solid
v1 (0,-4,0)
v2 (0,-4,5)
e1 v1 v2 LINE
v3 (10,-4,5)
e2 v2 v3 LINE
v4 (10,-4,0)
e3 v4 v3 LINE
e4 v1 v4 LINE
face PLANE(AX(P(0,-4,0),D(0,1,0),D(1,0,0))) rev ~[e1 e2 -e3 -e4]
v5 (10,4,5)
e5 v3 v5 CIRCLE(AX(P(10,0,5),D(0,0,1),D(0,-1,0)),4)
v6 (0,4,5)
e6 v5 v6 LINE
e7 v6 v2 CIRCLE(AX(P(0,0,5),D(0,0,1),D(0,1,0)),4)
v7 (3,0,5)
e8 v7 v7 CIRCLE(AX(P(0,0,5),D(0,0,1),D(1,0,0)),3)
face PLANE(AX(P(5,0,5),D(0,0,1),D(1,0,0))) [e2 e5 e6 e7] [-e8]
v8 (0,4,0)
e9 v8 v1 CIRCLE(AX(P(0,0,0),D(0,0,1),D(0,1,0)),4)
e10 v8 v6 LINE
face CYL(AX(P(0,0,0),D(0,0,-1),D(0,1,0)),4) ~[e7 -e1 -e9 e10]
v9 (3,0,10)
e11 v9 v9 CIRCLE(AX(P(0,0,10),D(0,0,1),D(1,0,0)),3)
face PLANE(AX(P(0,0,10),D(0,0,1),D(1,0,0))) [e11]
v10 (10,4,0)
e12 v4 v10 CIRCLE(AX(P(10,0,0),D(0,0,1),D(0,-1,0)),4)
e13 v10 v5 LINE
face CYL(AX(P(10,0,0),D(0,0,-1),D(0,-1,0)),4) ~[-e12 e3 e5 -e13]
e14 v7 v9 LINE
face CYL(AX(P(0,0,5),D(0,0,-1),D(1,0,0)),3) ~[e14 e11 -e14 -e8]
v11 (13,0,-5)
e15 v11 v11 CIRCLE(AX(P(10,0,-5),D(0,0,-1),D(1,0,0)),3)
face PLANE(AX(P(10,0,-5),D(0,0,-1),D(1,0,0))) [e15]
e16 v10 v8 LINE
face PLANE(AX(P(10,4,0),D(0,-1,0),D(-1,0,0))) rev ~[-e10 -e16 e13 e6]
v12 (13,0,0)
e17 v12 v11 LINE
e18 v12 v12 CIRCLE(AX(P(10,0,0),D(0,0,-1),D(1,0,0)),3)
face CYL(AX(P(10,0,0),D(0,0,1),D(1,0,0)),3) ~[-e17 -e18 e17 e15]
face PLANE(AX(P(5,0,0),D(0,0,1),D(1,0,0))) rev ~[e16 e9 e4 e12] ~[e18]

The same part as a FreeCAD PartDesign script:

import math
import FreeCAD as App
import Part
import Sketcher
from FreeCAD import Vector

doc = App.newDocument("Part")
params = doc.addObject("Spreadsheet::Sheet", "Params")
for row, (alias, value) in enumerate([
    ("sketch1_radius", "4 mm"),
    ("sketch1_width", "10 mm"),
    ("pad1_length", "5 mm"),
    ("sketch2_diameter", "6 mm"),
    ("pad2_length", "5 mm"),
    ("sketch3_diameter", "6 mm"),
    ("pad3_length", "5 mm"),
], start=1):
    params.set(f"A{row}", alias)
    params.set(f"B{row}", "=" + value)
    params.setAlias(f"B{row}", alias)

body = doc.addObject("PartDesign::Body", "Body")

# Sketch on XY plane
sketch1 = body.newObject("Sketcher::SketchObject", "Sketch")
sketch1.AttachmentSupport = (doc.getObject("XY_Plane"), [""])
sketch1.MapMode = "FlatFace"
sketch1.addGeometry([
    Part.ArcOfCircle(Part.Circle(Vector(0, 0, 0), Vector(0, 0, 1), 4), math.radians(90), math.radians(270)),
    Part.LineSegment(Vector(0, -4, 0), Vector(10, -4, 0)),
    Part.ArcOfCircle(Part.Circle(Vector(10, 0, 0), Vector(0, 0, 1), 4), math.radians(-90), math.radians(90)),
    Part.LineSegment(Vector(10, 4, 0), Vector(0, 4, 0)),
], False)
sketch1.addConstraint([
    Sketcher.Constraint("Tangent", 0, 2, 1, 1),
    Sketcher.Constraint("Tangent", 1, 2, 2, 1),
    Sketcher.Constraint("Tangent", 2, 2, 3, 1),
    Sketcher.Constraint("Tangent", 3, 2, 0, 1),
    Sketcher.Constraint("Horizontal", 1),
    Sketcher.Constraint("Horizontal", 3),
    Sketcher.Constraint("Coincident", 0, 3, -1, 1),
    Sketcher.Constraint("Radius", 0, 4.0),
    Sketcher.Constraint("DistanceX", 1, 1, 1, 2, 10.0),
])
sketch1.setExpression("Constraints[7]", "Params.sketch1_radius")
sketch1.setExpression("Constraints[8]", "Params.sketch1_width")
pad1 = body.newObject("PartDesign::Pad", "Pad")
pad1.Profile = sketch1
pad1.setExpression("Length", "Params.pad1_length")

# Sketch on XY plane
sketch2 = body.newObject("Sketcher::SketchObject", "Sketch001")
sketch2.AttachmentSupport = (doc.getObject("XY_Plane"), [""])
sketch2.MapMode = "FlatFace"
sketch2.AttachmentOffset = App.Placement(Vector(0, 0, 5), App.Rotation())
sketch2.addGeometry(Part.Circle(Vector(0, 0, 0), Vector(0, 0, 1), 3), False)
sketch2.addConstraint([
    Sketcher.Constraint("Coincident", 0, 3, -1, 1),
    Sketcher.Constraint("Diameter", 0, 6.0),
])
sketch2.setExpression("Constraints[1]", "Params.sketch2_diameter")
pad2 = body.newObject("PartDesign::Pad", "Pad001")
pad2.Profile = sketch2
pad2.setExpression("Length", "Params.pad2_length")

# Sketch on XY plane
sketch3 = body.newObject("Sketcher::SketchObject", "Sketch002")
sketch3.AttachmentSupport = (doc.getObject("XY_Plane"), [""])
sketch3.MapMode = "FlatFace"
sketch3.addGeometry(Part.Circle(Vector(10, 0, 0), Vector(0, 0, 1), 3), False)
sketch3.addConstraint([
    Sketcher.Constraint("PointOnObject", 0, 3, -1),
    Sketcher.Constraint("Diameter", 0, 6.0),
    Sketcher.Constraint("DistanceX", -1, 1, 0, 3, 10.0),
])
sketch3.setExpression("Constraints[1]", "Params.sketch3_diameter")
pad3 = body.newObject("PartDesign::Pad", "Pad002")
pad3.Profile = sketch3
pad3.setExpression("Length", "Params.pad3_length")
pad3.Reversed = True

doc.recompute()
